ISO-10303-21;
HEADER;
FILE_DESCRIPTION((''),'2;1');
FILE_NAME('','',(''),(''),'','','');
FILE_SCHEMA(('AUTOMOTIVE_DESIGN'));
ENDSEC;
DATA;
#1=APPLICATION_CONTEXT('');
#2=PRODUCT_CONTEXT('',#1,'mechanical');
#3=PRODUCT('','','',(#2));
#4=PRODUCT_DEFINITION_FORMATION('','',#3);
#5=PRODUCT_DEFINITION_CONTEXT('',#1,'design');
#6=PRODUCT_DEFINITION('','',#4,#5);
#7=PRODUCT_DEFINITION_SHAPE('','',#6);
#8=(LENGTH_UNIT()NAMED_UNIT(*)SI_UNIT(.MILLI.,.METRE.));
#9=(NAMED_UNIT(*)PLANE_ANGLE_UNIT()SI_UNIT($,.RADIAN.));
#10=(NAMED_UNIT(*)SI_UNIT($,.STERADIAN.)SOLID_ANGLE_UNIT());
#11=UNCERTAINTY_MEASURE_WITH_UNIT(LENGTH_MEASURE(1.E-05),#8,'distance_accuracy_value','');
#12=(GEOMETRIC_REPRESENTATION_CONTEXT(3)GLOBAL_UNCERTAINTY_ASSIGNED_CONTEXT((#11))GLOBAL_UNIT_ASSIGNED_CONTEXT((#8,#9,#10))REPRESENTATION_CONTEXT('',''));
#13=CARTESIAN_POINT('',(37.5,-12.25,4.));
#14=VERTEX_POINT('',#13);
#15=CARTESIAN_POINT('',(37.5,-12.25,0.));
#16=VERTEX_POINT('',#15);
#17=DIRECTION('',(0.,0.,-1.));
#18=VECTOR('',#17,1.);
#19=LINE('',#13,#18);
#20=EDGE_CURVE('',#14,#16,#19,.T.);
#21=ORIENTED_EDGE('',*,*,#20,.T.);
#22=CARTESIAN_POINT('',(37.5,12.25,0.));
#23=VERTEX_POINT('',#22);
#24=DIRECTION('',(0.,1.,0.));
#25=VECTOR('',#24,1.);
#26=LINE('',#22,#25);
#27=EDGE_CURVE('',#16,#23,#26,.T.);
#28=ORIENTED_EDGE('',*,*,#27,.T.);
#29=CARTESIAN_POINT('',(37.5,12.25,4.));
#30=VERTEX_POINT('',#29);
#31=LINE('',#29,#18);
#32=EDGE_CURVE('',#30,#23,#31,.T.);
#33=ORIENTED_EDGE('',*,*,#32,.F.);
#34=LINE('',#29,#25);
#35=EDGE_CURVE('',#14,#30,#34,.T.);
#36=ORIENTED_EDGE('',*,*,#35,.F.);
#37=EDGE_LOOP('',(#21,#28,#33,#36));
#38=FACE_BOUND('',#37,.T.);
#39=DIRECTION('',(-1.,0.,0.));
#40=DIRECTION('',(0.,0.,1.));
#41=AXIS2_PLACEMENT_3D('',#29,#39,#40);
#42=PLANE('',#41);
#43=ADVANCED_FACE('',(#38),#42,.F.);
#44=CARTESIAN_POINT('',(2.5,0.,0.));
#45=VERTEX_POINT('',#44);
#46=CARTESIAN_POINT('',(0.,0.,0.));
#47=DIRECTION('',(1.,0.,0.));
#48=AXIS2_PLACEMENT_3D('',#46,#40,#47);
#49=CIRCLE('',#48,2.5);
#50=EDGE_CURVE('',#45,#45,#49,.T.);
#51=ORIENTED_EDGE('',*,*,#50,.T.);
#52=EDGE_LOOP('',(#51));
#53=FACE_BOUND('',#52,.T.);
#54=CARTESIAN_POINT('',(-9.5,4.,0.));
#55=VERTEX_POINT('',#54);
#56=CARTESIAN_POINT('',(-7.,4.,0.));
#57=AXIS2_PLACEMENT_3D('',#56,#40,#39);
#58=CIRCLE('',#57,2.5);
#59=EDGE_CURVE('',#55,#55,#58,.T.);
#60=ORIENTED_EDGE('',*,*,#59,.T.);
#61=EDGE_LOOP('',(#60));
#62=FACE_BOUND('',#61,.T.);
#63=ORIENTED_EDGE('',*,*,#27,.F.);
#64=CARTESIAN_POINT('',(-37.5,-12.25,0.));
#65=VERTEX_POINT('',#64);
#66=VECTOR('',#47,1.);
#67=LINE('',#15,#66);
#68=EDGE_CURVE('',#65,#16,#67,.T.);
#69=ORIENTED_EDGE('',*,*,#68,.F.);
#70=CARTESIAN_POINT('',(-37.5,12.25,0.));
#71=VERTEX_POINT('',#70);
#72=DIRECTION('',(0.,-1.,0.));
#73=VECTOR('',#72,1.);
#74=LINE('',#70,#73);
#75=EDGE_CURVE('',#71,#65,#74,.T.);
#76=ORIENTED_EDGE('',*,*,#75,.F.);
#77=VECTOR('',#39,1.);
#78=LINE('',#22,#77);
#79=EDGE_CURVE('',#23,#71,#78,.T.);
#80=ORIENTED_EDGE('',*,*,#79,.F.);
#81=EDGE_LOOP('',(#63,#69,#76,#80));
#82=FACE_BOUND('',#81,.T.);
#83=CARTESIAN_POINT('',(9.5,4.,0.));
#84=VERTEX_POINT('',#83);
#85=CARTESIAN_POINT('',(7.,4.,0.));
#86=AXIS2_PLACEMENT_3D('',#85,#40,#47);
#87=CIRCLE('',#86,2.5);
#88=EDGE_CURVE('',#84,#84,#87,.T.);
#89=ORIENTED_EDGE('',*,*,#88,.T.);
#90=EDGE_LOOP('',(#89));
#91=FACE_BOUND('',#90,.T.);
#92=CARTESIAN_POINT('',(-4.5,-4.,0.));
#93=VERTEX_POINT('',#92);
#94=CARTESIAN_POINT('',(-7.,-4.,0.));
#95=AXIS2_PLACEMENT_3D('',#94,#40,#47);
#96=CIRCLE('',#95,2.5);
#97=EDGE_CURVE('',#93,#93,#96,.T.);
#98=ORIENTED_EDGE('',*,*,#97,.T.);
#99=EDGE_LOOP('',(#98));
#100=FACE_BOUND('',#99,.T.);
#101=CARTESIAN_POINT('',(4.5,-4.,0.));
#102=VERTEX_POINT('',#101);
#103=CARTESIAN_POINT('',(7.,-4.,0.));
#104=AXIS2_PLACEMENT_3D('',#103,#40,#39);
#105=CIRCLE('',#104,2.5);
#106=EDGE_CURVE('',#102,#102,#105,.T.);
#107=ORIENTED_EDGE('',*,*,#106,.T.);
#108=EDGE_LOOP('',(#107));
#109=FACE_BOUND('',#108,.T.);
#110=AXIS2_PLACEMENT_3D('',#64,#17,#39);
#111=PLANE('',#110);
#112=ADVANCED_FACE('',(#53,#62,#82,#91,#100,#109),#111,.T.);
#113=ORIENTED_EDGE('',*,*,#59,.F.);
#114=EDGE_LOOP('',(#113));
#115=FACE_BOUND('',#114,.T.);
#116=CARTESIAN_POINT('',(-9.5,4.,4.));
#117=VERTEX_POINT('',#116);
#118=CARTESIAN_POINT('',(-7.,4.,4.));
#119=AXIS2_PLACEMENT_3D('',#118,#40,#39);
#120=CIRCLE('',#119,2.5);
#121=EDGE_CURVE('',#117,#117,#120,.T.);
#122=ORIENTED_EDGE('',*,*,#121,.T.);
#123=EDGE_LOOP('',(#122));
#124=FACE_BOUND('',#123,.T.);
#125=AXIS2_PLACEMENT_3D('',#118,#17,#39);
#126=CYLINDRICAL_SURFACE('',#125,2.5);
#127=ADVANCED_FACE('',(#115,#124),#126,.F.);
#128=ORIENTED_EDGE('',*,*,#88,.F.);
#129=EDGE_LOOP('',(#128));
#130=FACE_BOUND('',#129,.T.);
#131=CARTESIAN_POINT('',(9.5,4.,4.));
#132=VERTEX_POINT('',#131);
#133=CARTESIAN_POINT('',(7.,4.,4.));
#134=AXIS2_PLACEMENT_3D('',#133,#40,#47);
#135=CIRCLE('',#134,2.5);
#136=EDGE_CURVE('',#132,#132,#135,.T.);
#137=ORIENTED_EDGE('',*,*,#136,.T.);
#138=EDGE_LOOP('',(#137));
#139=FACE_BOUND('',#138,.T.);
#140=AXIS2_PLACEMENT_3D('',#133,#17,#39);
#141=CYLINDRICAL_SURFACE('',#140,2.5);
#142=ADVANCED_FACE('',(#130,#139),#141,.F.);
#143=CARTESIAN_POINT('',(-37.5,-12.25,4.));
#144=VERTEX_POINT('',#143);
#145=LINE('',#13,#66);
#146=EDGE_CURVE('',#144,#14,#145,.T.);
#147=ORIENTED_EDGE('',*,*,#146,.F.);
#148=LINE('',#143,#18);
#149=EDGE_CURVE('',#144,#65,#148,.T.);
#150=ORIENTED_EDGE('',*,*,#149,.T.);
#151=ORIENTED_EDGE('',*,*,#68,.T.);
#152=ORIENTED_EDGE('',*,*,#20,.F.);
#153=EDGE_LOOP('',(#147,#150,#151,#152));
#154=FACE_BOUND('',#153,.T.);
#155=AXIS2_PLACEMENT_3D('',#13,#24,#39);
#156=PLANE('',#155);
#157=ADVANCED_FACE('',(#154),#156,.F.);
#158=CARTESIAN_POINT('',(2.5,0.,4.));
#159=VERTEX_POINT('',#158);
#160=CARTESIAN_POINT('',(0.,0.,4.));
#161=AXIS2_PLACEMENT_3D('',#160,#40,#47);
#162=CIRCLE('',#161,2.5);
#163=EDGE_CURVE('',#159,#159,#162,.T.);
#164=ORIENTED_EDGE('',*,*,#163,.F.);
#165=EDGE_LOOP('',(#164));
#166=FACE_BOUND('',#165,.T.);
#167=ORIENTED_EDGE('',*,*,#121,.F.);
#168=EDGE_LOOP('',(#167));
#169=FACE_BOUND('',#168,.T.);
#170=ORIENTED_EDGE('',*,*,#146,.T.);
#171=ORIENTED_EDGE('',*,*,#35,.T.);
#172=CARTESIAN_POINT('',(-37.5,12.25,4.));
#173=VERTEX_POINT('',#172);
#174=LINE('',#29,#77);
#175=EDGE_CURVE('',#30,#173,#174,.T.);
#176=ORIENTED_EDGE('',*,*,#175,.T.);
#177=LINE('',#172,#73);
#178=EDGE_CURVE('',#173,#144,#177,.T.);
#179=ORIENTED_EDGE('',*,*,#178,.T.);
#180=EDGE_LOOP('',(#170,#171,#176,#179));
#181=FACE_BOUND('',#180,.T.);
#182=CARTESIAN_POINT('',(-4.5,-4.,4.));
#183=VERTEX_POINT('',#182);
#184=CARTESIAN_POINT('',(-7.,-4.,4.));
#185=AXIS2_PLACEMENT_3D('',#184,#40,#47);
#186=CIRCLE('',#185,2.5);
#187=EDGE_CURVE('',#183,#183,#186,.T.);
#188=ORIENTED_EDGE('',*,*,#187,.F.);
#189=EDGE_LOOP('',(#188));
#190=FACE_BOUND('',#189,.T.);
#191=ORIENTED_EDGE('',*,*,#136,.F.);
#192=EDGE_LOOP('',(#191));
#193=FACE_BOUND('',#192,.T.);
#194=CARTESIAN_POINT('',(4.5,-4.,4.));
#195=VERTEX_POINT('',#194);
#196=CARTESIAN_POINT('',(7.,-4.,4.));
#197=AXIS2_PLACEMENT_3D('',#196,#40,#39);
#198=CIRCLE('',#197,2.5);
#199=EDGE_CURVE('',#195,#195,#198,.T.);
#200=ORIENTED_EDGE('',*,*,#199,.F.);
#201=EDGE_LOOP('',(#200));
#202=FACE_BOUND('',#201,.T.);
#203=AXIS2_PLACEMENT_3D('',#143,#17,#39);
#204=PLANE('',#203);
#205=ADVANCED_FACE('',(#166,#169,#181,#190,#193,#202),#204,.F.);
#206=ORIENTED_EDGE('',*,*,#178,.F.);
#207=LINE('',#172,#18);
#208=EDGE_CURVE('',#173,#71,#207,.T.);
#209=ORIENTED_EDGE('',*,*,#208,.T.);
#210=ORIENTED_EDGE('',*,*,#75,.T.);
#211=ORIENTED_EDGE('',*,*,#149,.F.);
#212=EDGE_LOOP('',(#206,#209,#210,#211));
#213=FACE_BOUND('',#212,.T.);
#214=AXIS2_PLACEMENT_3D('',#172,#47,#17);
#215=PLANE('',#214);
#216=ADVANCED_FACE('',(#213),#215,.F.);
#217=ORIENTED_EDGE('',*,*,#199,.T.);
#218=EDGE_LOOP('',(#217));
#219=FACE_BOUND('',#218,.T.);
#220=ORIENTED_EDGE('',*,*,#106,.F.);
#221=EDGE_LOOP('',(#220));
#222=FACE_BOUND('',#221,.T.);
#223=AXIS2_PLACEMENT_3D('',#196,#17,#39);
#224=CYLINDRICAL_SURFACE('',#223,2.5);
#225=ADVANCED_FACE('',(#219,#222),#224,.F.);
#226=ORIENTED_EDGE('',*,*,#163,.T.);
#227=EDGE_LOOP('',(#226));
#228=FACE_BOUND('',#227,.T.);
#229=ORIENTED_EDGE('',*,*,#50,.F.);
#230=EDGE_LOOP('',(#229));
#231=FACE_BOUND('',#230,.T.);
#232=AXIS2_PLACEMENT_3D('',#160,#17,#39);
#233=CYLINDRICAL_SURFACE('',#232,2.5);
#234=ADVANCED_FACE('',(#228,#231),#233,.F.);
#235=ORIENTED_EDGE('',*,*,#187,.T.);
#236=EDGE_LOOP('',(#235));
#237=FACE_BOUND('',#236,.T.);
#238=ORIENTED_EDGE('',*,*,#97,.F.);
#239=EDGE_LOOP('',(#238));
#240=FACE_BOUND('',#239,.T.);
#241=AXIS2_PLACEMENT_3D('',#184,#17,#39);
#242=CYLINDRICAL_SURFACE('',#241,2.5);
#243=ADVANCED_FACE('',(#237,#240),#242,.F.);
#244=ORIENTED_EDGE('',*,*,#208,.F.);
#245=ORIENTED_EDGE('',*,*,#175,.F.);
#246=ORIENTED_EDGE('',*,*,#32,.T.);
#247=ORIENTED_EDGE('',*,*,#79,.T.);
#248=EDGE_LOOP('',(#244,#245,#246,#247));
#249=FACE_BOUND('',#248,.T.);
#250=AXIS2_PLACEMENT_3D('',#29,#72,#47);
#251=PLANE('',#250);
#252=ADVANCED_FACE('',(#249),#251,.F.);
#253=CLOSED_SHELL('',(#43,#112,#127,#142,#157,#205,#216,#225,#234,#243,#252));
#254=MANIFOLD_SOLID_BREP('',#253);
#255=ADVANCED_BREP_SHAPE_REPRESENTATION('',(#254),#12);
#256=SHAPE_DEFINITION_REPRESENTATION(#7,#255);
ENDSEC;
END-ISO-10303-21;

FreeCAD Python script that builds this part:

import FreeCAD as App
import Part
import Sketcher
from FreeCAD import Vector
Q = App.Units.Quantity

doc = App.newDocument("Part")
body = doc.addObject("PartDesign::Body", "Body")

sketch1 = doc.addObject("Sketcher::SketchObject", "Sketch")
body.addObject(sketch1)
sketch1.AttachmentSupport = (doc.XY_Plane, [""])
sketch1.MapMode = "FlatFace"
sketch1.addGeometry([
    Part.LineSegment(Vector(-37.5, 12.2, 0), Vector(-37.5, -12.2, 0)),
    Part.LineSegment(Vector(-37.5, -12.2, 0), Vector(37.5, -12.2, 0)),
    Part.LineSegment(Vector(37.5, -12.2, 0), Vector(37.5, 12.2, 0)),
    Part.LineSegment(Vector(37.5, 12.2, 0), Vector(-37.5, 12.2, 0)),
    Part.Circle(Vector(-7, -4, 0), Vector(0, 0, 1), 2.5),
    Part.Circle(Vector(7, -4, 0), Vector(0, 0, 1), 2.5),
    Part.Circle(Vector(-7, 4, 0), Vector(0, 0, 1), 2.5),
    Part.Circle(Vector(0, 0, 0), Vector(0, 0, 1), 2.5),
    Part.Circle(Vector(7, 4, 0), Vector(0, 0, 1), 2.5),
], False)
sketch1.addConstraint([
    Sketcher.Constraint("Coincident", 0, 2, 1, 1),
    Sketcher.Constraint("Coincident", 1, 2, 2, 1),
    Sketcher.Constraint("Coincident", 2, 2, 3, 1),
    Sketcher.Constraint("Coincident", 3, 2, 0, 1),
    Sketcher.Constraint("Vertical", 0),
    Sketcher.Constraint("Horizontal", 1),
    Sketcher.Constraint("Vertical", 2),
    Sketcher.Constraint("Horizontal", 3),
    Sketcher.Constraint("Coincident", 7, 3, -1, 1),
    Sketcher.Constraint("Equal", 4, 5),
    Sketcher.Constraint("Equal", 5, 6),
    Sketcher.Constraint("Equal", 6, 7),
    Sketcher.Constraint("Equal", 7, 8),
    Sketcher.Constraint("Symmetric", 5, 3, 6, 3, -1, 1),
    Sketcher.Constraint("Symmetric", 4, 3, 8, 3, -1, 1),
    Sketcher.Constraint("Symmetric", 0, 2, 2, 2, -1, 1),
    Sketcher.Constraint("Symmetric", 4, 3, 5, 3, -2),
    Sketcher.Constraint("Diameter", 4, Q("5 mm")),
    Sketcher.Constraint("DistanceX", 1, 1, 1, 2, Q("75 mm")),
    Sketcher.Constraint("DistanceY", 0, 2, 0, 1, Q("24.5 mm")),
    Sketcher.Constraint("DistanceX", 4, 3, -1, 1, Q("7 mm")),
    Sketcher.Constraint("DistanceY", 4, 3, -1, 1, Q("4 mm")),
])
pad1 = doc.addObject("PartDesign::Pad", "Pad")
body.addObject(pad1)
pad1.Profile = sketch1
pad1.Length = 4

doc.recompute()
